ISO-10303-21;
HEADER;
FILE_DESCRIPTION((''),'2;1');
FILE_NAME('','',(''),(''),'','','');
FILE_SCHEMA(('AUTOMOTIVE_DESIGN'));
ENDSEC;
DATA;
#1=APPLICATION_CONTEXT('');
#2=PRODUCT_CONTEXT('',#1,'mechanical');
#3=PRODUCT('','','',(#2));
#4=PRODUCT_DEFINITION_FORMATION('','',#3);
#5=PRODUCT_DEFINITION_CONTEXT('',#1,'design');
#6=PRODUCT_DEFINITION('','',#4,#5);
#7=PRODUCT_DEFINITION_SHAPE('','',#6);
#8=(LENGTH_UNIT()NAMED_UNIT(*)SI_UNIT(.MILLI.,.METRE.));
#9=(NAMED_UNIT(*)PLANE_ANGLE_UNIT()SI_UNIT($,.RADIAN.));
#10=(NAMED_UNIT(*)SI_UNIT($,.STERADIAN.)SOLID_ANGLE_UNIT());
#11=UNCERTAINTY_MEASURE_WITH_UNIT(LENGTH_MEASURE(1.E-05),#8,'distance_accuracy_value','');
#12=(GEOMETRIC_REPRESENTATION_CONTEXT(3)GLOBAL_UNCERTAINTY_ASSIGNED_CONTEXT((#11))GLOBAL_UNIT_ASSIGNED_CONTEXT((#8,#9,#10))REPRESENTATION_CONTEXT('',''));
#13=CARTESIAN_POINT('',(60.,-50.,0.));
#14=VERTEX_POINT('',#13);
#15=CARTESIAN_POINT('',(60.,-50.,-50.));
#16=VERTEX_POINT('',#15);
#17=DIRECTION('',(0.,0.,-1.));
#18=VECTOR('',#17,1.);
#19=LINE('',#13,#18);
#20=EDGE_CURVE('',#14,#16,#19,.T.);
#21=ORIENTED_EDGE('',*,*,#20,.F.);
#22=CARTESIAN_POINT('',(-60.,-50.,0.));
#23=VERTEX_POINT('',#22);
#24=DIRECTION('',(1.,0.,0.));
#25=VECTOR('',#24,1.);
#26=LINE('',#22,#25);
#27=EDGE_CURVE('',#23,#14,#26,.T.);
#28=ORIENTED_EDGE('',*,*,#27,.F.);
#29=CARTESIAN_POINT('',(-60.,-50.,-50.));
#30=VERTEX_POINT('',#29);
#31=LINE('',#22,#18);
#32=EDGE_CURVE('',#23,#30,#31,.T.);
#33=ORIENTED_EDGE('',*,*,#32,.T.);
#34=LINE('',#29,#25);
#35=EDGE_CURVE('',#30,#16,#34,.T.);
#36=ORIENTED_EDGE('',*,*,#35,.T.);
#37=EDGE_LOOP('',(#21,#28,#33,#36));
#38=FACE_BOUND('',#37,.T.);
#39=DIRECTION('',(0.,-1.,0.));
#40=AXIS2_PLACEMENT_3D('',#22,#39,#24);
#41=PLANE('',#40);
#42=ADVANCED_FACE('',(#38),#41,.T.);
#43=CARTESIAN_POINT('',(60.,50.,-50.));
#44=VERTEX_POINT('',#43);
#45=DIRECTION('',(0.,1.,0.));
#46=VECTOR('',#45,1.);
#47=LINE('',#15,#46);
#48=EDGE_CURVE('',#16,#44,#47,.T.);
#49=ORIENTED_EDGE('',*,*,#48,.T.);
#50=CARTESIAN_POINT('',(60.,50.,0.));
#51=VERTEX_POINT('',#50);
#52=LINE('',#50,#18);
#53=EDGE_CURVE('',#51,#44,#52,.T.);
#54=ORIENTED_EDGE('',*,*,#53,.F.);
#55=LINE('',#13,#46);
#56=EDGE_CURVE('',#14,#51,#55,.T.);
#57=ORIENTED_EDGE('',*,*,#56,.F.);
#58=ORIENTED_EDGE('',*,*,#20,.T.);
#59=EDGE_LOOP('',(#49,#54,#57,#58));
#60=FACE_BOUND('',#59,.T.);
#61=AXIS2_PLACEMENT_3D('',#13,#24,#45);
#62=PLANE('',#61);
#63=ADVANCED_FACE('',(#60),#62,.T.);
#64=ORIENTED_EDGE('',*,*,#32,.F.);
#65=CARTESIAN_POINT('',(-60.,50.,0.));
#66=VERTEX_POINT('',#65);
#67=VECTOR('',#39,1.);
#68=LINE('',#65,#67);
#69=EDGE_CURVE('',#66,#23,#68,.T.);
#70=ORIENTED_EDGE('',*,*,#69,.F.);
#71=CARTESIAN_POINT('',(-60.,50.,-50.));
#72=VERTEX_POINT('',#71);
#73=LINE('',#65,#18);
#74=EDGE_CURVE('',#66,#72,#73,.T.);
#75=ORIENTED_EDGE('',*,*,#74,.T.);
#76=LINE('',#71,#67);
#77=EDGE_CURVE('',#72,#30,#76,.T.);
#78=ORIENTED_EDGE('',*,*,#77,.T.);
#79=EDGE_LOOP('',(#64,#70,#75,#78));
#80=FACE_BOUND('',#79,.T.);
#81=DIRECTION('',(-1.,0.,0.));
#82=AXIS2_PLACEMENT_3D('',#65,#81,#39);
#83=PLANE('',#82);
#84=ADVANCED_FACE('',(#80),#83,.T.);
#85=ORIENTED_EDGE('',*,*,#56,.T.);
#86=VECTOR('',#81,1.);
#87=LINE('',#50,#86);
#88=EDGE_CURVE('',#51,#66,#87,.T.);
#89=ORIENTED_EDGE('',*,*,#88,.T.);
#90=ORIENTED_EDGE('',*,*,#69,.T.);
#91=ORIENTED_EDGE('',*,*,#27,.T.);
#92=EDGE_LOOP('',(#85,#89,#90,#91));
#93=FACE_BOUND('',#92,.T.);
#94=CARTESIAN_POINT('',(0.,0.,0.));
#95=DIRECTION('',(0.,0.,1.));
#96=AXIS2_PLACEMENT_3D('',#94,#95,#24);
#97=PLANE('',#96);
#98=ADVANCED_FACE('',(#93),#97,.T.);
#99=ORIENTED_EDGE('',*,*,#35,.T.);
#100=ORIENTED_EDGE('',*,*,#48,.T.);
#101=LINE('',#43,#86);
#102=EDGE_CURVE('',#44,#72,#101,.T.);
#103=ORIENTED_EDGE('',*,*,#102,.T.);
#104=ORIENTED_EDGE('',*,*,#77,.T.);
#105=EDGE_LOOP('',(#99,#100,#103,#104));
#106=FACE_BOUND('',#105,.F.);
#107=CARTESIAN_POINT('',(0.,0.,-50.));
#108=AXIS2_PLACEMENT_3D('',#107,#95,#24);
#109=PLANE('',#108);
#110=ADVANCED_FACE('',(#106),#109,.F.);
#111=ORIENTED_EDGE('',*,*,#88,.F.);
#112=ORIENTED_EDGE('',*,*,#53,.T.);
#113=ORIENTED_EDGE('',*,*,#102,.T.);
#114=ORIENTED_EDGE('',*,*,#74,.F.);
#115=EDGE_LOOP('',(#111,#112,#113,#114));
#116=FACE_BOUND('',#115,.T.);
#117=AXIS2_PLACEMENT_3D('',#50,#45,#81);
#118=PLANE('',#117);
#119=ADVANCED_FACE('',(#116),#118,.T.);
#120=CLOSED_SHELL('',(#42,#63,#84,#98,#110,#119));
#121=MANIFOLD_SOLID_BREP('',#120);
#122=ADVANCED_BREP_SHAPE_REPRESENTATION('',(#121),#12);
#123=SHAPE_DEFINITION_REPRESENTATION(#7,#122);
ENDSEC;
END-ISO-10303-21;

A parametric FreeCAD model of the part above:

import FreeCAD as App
import Part
import Sketcher
from FreeCAD import Vector
Q = App.Units.Quantity


def add_polygon(sketch, points):
    """Adds a closed chain of lines whose ends are joined by coincident constraints."""
    first, n = sketch.GeometryCount, len(points)
    for a, b in zip(points, points[1:] + points[:1]):
        sketch.addGeometry(Part.LineSegment(App.Vector(*a, 0), App.Vector(*b, 0)), False)
    for i in range(n):
        sketch.addConstraint(Sketcher.Constraint("Coincident", first + i, 2, first + (i + 1) % n, 1))

doc = App.newDocument("Part")
body = doc.addObject("PartDesign::Body", "Body")

# Sketch on XY plane
sketch1 = body.newObject("Sketcher::SketchObject", "Sketch")
sketch1.AttachmentSupport = (doc.getObject("XY_Plane"), [""])
sketch1.MapMode = "FlatFace"
add_polygon(sketch1, [(-60, 50), (-60, -50), (60, -50), (60, 50)])  # lines 0-3
sketch1.addConstraint([
    Sketcher.Constraint("Vertical", 0),
    Sketcher.Constraint("Horizontal", 1),
    Sketcher.Constraint("Vertical", 2),
    Sketcher.Constraint("Horizontal", 3),
    Sketcher.Constraint("Symmetric", 0, 2, 2, 2, -1, 1),
    Sketcher.Constraint("DistanceY", 0, 2, 0, 1, Q("3.937 in")),
    Sketcher.Constraint("DistanceX", 1, 1, 1, 2, Q("4.7244 in")),
])
pad1 = body.newObject("PartDesign::Pad", "Pad")
pad1.Profile = sketch1
pad1.Length = Q("1.9685039 in")
pad1.Reversed = True

doc.recompute()
